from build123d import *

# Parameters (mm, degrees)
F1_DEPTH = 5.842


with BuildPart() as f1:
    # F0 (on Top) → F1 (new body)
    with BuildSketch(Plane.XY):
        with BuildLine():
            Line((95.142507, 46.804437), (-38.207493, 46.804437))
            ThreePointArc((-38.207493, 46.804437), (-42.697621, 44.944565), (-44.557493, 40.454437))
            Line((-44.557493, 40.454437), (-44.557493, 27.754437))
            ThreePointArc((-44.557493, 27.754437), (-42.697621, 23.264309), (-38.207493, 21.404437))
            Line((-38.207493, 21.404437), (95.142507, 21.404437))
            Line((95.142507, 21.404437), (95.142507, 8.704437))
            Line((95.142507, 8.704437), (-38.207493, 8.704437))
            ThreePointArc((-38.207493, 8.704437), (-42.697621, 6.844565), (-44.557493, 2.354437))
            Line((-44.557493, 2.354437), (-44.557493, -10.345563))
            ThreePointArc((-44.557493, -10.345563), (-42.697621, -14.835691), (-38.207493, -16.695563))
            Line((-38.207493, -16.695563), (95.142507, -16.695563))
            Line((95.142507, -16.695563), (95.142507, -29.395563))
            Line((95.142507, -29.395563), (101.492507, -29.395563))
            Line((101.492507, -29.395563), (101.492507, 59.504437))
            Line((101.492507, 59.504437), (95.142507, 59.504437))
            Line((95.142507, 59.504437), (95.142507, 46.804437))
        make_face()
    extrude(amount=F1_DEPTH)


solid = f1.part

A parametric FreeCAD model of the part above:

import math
import FreeCAD as App
import Part
import Sketcher

V = App.Vector
Q = App.Units.Quantity

doc = App.newDocument("Part")
body = doc.addObject("PartDesign::Body", "Body")

# Sketch on XY plane
sketch1 = body.newObject("Sketcher::SketchObject", "Sketch")
sketch1.AttachmentSupport = (doc.getObject("XY_Plane"), [""])
sketch1.MapMode = "FlatFace"
sketch1.addGeometry(Part.LineSegment(V(95, 47, 0), V(-38, 47, 0)), False)
sketch1.addGeometry(Part.ArcOfCircle(Part.Circle(V(-38, 40, 0), V(0, 0, 1), 6), math.radians(90), math.radians(180)), False)
sketch1.addGeometry(Part.LineSegment(V(-45, 40, 0), V(-45, 28, 0)), False)
sketch1.addGeometry(Part.ArcOfCircle(Part.Circle(V(-38, 28, 0), V(0, 0, 1), 6), math.radians(-180), math.radians(-90)), False)
sketch1.addGeometry(Part.LineSegment(V(-38, 21, 0), V(95, 21, 0)), False)
sketch1.addGeometry(Part.LineSegment(V(95, 21, 0), V(95, 9, 0)), False)
sketch1.addGeometry(Part.LineSegment(V(95, 9, 0), V(-38, 9, 0)), False)
sketch1.addGeometry(Part.ArcOfCircle(Part.Circle(V(-38, 2, 0), V(0, 0, 1), 6), math.radians(90), math.radians(180)), False)
sketch1.addGeometry(Part.LineSegment(V(-45, 2, 0), V(-45, -10, 0)), False)
sketch1.addGeometry(Part.ArcOfCircle(Part.Circle(V(-38, -10, 0), V(0, 0, 1), 6), math.radians(-180), math.radians(-90)), False)
sketch1.addGeometry(Part.LineSegment(V(-38, -17, 0), V(95, -17, 0)), False)
sketch1.addGeometry(Part.LineSegment(V(95, -17, 0), V(95, -29, 0)), False)
sketch1.addGeometry(Part.LineSegment(V(95, -29, 0), V(101, -29, 0)), False)
sketch1.addGeometry(Part.LineSegment(V(101, -29, 0), V(101, 60, 0)), False)
sketch1.addGeometry(Part.LineSegment(V(101, 60, 0), V(95, 60, 0)), False)
sketch1.addGeometry(Part.LineSegment(V(95, 60, 0), V(95, 47, 0)), False)
sketch1.addConstraint(Sketcher.Constraint("Tangent", 0, 2, 1, 1))
sketch1.addConstraint(Sketcher.Constraint("Tangent", 1, 2, 2, 1))
sketch1.addConstraint(Sketcher.Constraint("Tangent", 2, 2, 3, 1))
sketch1.addConstraint(Sketcher.Constraint("Tangent", 3, 2, 4, 1))
sketch1.addConstraint(Sketcher.Constraint("Coincident", 4, 2, 5, 1))
sketch1.addConstraint(Sketcher.Constraint("Coincident", 5, 2, 6, 1))
sketch1.addConstraint(Sketcher.Constraint("Tangent", 6, 2, 7, 1))
sketch1.addConstraint(Sketcher.Constraint("Tangent", 7, 2, 8, 1))
sketch1.addConstraint(Sketcher.Constraint("Tangent", 8, 2, 9, 1))
sketch1.addConstraint(Sketcher.Constraint("Tangent", 9, 2, 10, 1))
sketch1.addConstraint(Sketcher.Constraint("Coincident", 10, 2, 11, 1))
sketch1.addConstraint(Sketcher.Constraint("Coincident", 11, 2, 12, 1))
sketch1.addConstraint(Sketcher.Constraint("Coincident", 12, 2, 13, 1))
sketch1.addConstraint(Sketcher.Constraint("Coincident", 13, 2, 14, 1))
sketch1.addConstraint(Sketcher.Constraint("Coincident", 14, 2, 15, 1))
sketch1.addConstraint(Sketcher.Constraint("Coincident", 15, 2, 0, 1))
sketch1.addConstraint(Sketcher.Constraint("Horizontal", 0))
sketch1.addConstraint(Sketcher.Constraint("Vertical", 2))
sketch1.addConstraint(Sketcher.Constraint("Horizontal", 4))
sketch1.addConstraint(Sketcher.Constraint("Vertical", 5))
sketch1.addConstraint(Sketcher.Constraint("Horizontal", 6))
sketch1.addConstraint(Sketcher.Constraint("Vertical", 8))
sketch1.addConstraint(Sketcher.Constraint("Horizontal", 10))
sketch1.addConstraint(Sketcher.Constraint("Vertical", 11))
sketch1.addConstraint(Sketcher.Constraint("Horizontal", 12))
sketch1.addConstraint(Sketcher.Constraint("Vertical", 13))
sketch1.addConstraint(Sketcher.Constraint("Horizontal", 14))
sketch1.addConstraint(Sketcher.Constraint("Vertical", 15))
sketch1.addConstraint(Sketcher.Constraint("Equal", 1, 3))
sketch1.addConstraint(Sketcher.Constraint("Equal", 3, 7))
sketch1.addConstraint(Sketcher.Constraint("Equal", 7, 9))
sketch1.addConstraint(Sketcher.Constraint("Vertical", 3, 3, 7, 3))
sketch1.addConstraint(Sketcher.Constraint("Vertical", 5, 2, 10, 2))
sketch1.addConstraint(Sketcher.Constraint("Vertical", 11, 2, 14, 2))
sketch1.addConstraint(Sketcher.Constraint("Equal", 2, 5))
sketch1.addConstraint(Sketcher.Constraint("Equal", 5, 8))
sketch1.addConstraint(Sketcher.Constraint("Equal", 8, 11))
sketch1.addConstraint(Sketcher.Constraint("Equal", 11, 15))
sketch1.addConstraint(Sketcher.Constraint("Radius", 1, Q("0.25 in")))
sketch1.addConstraint(Sketcher.Constraint("DistanceY", 2, 2, 2, 1, Q("0.5 in")))
sketch1.addConstraint(Sketcher.Constraint("DistanceX", 0, 2, 0, 1, Q("5.25 in")))
sketch1.addConstraint(Sketcher.Constraint("DistanceX", 12, 1, 12, 2, Q("0.25 in")))
sketch1.addConstraint(Sketcher.Constraint("DistanceX", 1, 3, -1, 1, 38.207493))
sketch1.addConstraint(Sketcher.Constraint("DistanceY", -1, 1, 1, 3, 40.454437))
pad1 = body.newObject("PartDesign::Pad", "Pad")
pad1.Profile = sketch1
pad1.Length = Q("0.23 in")

doc.recompute()
